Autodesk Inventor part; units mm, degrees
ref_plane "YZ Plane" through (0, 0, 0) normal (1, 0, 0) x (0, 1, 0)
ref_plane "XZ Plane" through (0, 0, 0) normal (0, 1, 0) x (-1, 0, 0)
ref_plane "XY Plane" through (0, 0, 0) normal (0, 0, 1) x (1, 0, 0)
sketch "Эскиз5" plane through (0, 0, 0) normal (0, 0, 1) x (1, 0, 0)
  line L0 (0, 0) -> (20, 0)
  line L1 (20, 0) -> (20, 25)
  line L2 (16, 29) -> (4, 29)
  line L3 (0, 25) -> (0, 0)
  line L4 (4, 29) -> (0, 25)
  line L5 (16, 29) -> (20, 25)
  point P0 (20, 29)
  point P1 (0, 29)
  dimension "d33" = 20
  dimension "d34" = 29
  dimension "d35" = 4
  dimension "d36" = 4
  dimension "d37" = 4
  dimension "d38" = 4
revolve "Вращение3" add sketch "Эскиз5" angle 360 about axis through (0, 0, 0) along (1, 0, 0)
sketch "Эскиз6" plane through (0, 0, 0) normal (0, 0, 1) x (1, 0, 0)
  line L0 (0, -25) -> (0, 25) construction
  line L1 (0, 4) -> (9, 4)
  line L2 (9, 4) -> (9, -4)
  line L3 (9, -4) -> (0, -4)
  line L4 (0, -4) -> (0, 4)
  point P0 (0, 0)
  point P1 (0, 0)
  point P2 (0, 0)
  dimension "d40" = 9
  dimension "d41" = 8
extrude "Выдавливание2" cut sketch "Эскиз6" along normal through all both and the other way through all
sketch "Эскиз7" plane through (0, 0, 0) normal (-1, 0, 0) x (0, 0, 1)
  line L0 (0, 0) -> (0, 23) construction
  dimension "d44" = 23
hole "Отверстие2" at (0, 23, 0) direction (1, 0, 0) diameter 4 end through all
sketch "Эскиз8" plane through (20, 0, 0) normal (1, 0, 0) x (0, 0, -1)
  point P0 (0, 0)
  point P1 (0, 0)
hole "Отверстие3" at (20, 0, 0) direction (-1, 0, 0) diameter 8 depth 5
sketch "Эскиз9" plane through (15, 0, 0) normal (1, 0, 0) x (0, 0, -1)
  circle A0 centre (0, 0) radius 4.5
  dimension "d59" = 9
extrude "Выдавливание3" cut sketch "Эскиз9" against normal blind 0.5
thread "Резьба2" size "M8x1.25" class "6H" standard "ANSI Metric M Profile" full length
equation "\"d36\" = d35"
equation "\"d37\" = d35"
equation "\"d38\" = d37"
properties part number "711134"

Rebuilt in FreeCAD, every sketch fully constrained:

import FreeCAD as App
import Part
import Sketcher

V = App.Vector


def add_polygon(sketch, points):
    """Adds a closed chain of lines whose ends are joined by coincident constraints."""
    first, n = sketch.GeometryCount, len(points)
    for a, b in zip(points, points[1:] + points[:1]):
        sketch.addGeometry(Part.LineSegment(App.Vector(*a, 0), App.Vector(*b, 0)), False)
    for i in range(n):
        sketch.addConstraint(Sketcher.Constraint("Coincident", first + i, 2, first + (i + 1) % n, 1))

doc = App.newDocument("Part")
params = doc.addObject("Spreadsheet::Sheet", "Params")
for row, (alias, value) in enumerate([
    ("sketch1_width", "20 mm"),
    ("revolution_angle", "360 deg"),
    ("sketch2_width", "9 mm"),
    ("sketch2_height", "8 mm"),
    ("sketch3_diameter", "4 mm"),
    ("hole_diameter", "4 mm"),
    ("sketch4_diameter", "8 mm"),
    ("hole2_diameter", "8 mm"),
    ("hole2_depth", "5 mm"),
    ("sketch5_diameter", "9 mm"),
    ("pocket2_length", "0.5 mm"),
], start=1):
    params.set(f"A{row}", alias)
    params.set(f"B{row}", "=" + value)
    params.setAlias(f"B{row}", alias)

body = doc.addObject("PartDesign::Body", "Body")

# Sketch on XY plane
sketch1 = body.newObject("Sketcher::SketchObject", "Sketch")
sketch1.AttachmentSupport = (doc.getObject("XY_Plane"), [""])
sketch1.MapMode = "FlatFace"
add_polygon(sketch1, [(0, 25), (0, 0), (20, 0), (20, 25), (16, 29), (4, 29)])  # lines 0-5
sketch1.addConstraint(Sketcher.Constraint("Vertical", 0))
sketch1.addConstraint(Sketcher.Constraint("Horizontal", 1))
sketch1.addConstraint(Sketcher.Constraint("Vertical", 2))
sketch1.addConstraint(Sketcher.Constraint("Horizontal", 4))
sketch1.addConstraint(Sketcher.Constraint("Coincident", 0, 2, -1, 1))
sketch1.addConstraint(Sketcher.Constraint("Perpendicular", 3, 5))
sketch1.addConstraint(Sketcher.Constraint("Horizontal", 2, 2, 5, 2))
sketch1.addConstraint(Sketcher.Constraint("Equal", 3, 5))
sketch1.addConstraint(Sketcher.Constraint("DistanceX", 1, 1, 1, 2, 20.0))
sketch1.addConstraint(Sketcher.Constraint("DistanceY", -1, 1, 3, 2, 29.0))
sketch1.addConstraint(Sketcher.Constraint("DistanceX", -1, 1, 4, 2, 4.0))
sketch1.setExpression("Constraints[14]", "Params.sketch1_width")
revolution = body.newObject("PartDesign::Revolution", "Revolution")
revolution.Profile = sketch1
revolution.ReferenceAxis = (sketch1, ["H_Axis"])
revolution.setExpression("Angle", "Params.revolution_angle")

# Sketch on XY plane
sketch2 = body.newObject("Sketcher::SketchObject", "Sketch001")
sketch2.AttachmentSupport = (doc.getObject("XY_Plane"), [""])
sketch2.MapMode = "FlatFace"
add_polygon(sketch2, [(9, 4), (0, 4), (0, -4), (9, -4)])  # lines 0-3
sketch2.addConstraint(Sketcher.Constraint("Horizontal", 0))
sketch2.addConstraint(Sketcher.Constraint("Vertical", 1))
sketch2.addConstraint(Sketcher.Constraint("Horizontal", 2))
sketch2.addConstraint(Sketcher.Constraint("Vertical", 3))
sketch2.addConstraint(Sketcher.Constraint("Symmetric", 0, 2, 1, 2, -1, 1))
sketch2.addConstraint(Sketcher.Constraint("DistanceX", 0, 2, 0, 1, 9.0))
sketch2.addConstraint(Sketcher.Constraint("DistanceY", 1, 2, 1, 1, 8.0))
sketch2.setExpression("Constraints[9]", "Params.sketch2_width")
sketch2.setExpression("Constraints[10]", "Params.sketch2_height")
pocket1 = body.newObject("PartDesign::Pocket", "Pocket")
pocket1.Profile = sketch2
pocket1.Type = "ThroughAll"
pocket1.Midplane = True

# Sketch on YZ plane
sketch3 = body.newObject("Sketcher::SketchObject", "Sketch002")
sketch3.AttachmentSupport = (doc.getObject("YZ_Plane"), [""])
sketch3.MapMode = "FlatFace"
sketch3.addGeometry(Part.Circle(V(23, 0, 0), V(0, 0, 1), 2), False)
sketch3.addConstraint(Sketcher.Constraint("PointOnObject", 0, 3, -1))
sketch3.addConstraint(Sketcher.Constraint("Diameter", 0, 4.0))
sketch3.addConstraint(Sketcher.Constraint("DistanceX", -1, 1, 0, 3, 23.0))
sketch3.setExpression("Constraints[1]", "Params.sketch3_diameter")
doc.recompute()
hole = body.newObject("PartDesign::Hole", "Hole")
hole.Profile = sketch3
hole.ThreadType = "None"
hole.setExpression("Diameter", "Params.hole_diameter")
hole.DepthType = "ThroughAll"
hole.Reversed = True

# Sketch on YZ plane
sketch4 = body.newObject("Sketcher::SketchObject", "Sketch003")
sketch4.AttachmentSupport = (doc.getObject("YZ_Plane"), [""])
sketch4.MapMode = "FlatFace"
sketch4.AttachmentOffset = App.Placement(V(0, 0, 20), App.Rotation())
sketch4.addGeometry(Part.Circle(V(0, 0, 0), V(0, 0, 1), 4), False)
sketch4.addConstraint(Sketcher.Constraint("Coincident", 0, 3, -1, 1))
sketch4.addConstraint(Sketcher.Constraint("Diameter", 0, 8.0))
sketch4.setExpression("Constraints[1]", "Params.sketch4_diameter")
doc.recompute()
hole2 = body.newObject("PartDesign::Hole", "Hole001")
hole2.Profile = sketch4
hole2.ThreadType = "None"
hole2.setExpression("Diameter", "Params.hole2_diameter")
hole2.DepthType = "Dimension"
hole2.setExpression("Depth", "Params.hole2_depth")
hole2.DrillPoint = "Flat"

# Sketch on YZ plane
sketch5 = body.newObject("Sketcher::SketchObject", "Sketch004")
sketch5.AttachmentSupport = (doc.getObject("YZ_Plane"), [""])
sketch5.MapMode = "FlatFace"
sketch5.AttachmentOffset = App.Placement(V(0, 0, 15), App.Rotation())
sketch5.addGeometry(Part.Circle(V(0, 0, 0), V(0, 0, 1), 4.5), False)
sketch5.addConstraint(Sketcher.Constraint("Coincident", 0, 3, -1, 1))
sketch5.addConstraint(Sketcher.Constraint("Diameter", 0, 9.0))
sketch5.setExpression("Constraints[1]", "Params.sketch5_diameter")
pocket2 = body.newObject("PartDesign::Pocket", "Pocket001")
pocket2.Profile = sketch5
pocket2.setExpression("Length", "Params.pocket2_length")

doc.recompute()
